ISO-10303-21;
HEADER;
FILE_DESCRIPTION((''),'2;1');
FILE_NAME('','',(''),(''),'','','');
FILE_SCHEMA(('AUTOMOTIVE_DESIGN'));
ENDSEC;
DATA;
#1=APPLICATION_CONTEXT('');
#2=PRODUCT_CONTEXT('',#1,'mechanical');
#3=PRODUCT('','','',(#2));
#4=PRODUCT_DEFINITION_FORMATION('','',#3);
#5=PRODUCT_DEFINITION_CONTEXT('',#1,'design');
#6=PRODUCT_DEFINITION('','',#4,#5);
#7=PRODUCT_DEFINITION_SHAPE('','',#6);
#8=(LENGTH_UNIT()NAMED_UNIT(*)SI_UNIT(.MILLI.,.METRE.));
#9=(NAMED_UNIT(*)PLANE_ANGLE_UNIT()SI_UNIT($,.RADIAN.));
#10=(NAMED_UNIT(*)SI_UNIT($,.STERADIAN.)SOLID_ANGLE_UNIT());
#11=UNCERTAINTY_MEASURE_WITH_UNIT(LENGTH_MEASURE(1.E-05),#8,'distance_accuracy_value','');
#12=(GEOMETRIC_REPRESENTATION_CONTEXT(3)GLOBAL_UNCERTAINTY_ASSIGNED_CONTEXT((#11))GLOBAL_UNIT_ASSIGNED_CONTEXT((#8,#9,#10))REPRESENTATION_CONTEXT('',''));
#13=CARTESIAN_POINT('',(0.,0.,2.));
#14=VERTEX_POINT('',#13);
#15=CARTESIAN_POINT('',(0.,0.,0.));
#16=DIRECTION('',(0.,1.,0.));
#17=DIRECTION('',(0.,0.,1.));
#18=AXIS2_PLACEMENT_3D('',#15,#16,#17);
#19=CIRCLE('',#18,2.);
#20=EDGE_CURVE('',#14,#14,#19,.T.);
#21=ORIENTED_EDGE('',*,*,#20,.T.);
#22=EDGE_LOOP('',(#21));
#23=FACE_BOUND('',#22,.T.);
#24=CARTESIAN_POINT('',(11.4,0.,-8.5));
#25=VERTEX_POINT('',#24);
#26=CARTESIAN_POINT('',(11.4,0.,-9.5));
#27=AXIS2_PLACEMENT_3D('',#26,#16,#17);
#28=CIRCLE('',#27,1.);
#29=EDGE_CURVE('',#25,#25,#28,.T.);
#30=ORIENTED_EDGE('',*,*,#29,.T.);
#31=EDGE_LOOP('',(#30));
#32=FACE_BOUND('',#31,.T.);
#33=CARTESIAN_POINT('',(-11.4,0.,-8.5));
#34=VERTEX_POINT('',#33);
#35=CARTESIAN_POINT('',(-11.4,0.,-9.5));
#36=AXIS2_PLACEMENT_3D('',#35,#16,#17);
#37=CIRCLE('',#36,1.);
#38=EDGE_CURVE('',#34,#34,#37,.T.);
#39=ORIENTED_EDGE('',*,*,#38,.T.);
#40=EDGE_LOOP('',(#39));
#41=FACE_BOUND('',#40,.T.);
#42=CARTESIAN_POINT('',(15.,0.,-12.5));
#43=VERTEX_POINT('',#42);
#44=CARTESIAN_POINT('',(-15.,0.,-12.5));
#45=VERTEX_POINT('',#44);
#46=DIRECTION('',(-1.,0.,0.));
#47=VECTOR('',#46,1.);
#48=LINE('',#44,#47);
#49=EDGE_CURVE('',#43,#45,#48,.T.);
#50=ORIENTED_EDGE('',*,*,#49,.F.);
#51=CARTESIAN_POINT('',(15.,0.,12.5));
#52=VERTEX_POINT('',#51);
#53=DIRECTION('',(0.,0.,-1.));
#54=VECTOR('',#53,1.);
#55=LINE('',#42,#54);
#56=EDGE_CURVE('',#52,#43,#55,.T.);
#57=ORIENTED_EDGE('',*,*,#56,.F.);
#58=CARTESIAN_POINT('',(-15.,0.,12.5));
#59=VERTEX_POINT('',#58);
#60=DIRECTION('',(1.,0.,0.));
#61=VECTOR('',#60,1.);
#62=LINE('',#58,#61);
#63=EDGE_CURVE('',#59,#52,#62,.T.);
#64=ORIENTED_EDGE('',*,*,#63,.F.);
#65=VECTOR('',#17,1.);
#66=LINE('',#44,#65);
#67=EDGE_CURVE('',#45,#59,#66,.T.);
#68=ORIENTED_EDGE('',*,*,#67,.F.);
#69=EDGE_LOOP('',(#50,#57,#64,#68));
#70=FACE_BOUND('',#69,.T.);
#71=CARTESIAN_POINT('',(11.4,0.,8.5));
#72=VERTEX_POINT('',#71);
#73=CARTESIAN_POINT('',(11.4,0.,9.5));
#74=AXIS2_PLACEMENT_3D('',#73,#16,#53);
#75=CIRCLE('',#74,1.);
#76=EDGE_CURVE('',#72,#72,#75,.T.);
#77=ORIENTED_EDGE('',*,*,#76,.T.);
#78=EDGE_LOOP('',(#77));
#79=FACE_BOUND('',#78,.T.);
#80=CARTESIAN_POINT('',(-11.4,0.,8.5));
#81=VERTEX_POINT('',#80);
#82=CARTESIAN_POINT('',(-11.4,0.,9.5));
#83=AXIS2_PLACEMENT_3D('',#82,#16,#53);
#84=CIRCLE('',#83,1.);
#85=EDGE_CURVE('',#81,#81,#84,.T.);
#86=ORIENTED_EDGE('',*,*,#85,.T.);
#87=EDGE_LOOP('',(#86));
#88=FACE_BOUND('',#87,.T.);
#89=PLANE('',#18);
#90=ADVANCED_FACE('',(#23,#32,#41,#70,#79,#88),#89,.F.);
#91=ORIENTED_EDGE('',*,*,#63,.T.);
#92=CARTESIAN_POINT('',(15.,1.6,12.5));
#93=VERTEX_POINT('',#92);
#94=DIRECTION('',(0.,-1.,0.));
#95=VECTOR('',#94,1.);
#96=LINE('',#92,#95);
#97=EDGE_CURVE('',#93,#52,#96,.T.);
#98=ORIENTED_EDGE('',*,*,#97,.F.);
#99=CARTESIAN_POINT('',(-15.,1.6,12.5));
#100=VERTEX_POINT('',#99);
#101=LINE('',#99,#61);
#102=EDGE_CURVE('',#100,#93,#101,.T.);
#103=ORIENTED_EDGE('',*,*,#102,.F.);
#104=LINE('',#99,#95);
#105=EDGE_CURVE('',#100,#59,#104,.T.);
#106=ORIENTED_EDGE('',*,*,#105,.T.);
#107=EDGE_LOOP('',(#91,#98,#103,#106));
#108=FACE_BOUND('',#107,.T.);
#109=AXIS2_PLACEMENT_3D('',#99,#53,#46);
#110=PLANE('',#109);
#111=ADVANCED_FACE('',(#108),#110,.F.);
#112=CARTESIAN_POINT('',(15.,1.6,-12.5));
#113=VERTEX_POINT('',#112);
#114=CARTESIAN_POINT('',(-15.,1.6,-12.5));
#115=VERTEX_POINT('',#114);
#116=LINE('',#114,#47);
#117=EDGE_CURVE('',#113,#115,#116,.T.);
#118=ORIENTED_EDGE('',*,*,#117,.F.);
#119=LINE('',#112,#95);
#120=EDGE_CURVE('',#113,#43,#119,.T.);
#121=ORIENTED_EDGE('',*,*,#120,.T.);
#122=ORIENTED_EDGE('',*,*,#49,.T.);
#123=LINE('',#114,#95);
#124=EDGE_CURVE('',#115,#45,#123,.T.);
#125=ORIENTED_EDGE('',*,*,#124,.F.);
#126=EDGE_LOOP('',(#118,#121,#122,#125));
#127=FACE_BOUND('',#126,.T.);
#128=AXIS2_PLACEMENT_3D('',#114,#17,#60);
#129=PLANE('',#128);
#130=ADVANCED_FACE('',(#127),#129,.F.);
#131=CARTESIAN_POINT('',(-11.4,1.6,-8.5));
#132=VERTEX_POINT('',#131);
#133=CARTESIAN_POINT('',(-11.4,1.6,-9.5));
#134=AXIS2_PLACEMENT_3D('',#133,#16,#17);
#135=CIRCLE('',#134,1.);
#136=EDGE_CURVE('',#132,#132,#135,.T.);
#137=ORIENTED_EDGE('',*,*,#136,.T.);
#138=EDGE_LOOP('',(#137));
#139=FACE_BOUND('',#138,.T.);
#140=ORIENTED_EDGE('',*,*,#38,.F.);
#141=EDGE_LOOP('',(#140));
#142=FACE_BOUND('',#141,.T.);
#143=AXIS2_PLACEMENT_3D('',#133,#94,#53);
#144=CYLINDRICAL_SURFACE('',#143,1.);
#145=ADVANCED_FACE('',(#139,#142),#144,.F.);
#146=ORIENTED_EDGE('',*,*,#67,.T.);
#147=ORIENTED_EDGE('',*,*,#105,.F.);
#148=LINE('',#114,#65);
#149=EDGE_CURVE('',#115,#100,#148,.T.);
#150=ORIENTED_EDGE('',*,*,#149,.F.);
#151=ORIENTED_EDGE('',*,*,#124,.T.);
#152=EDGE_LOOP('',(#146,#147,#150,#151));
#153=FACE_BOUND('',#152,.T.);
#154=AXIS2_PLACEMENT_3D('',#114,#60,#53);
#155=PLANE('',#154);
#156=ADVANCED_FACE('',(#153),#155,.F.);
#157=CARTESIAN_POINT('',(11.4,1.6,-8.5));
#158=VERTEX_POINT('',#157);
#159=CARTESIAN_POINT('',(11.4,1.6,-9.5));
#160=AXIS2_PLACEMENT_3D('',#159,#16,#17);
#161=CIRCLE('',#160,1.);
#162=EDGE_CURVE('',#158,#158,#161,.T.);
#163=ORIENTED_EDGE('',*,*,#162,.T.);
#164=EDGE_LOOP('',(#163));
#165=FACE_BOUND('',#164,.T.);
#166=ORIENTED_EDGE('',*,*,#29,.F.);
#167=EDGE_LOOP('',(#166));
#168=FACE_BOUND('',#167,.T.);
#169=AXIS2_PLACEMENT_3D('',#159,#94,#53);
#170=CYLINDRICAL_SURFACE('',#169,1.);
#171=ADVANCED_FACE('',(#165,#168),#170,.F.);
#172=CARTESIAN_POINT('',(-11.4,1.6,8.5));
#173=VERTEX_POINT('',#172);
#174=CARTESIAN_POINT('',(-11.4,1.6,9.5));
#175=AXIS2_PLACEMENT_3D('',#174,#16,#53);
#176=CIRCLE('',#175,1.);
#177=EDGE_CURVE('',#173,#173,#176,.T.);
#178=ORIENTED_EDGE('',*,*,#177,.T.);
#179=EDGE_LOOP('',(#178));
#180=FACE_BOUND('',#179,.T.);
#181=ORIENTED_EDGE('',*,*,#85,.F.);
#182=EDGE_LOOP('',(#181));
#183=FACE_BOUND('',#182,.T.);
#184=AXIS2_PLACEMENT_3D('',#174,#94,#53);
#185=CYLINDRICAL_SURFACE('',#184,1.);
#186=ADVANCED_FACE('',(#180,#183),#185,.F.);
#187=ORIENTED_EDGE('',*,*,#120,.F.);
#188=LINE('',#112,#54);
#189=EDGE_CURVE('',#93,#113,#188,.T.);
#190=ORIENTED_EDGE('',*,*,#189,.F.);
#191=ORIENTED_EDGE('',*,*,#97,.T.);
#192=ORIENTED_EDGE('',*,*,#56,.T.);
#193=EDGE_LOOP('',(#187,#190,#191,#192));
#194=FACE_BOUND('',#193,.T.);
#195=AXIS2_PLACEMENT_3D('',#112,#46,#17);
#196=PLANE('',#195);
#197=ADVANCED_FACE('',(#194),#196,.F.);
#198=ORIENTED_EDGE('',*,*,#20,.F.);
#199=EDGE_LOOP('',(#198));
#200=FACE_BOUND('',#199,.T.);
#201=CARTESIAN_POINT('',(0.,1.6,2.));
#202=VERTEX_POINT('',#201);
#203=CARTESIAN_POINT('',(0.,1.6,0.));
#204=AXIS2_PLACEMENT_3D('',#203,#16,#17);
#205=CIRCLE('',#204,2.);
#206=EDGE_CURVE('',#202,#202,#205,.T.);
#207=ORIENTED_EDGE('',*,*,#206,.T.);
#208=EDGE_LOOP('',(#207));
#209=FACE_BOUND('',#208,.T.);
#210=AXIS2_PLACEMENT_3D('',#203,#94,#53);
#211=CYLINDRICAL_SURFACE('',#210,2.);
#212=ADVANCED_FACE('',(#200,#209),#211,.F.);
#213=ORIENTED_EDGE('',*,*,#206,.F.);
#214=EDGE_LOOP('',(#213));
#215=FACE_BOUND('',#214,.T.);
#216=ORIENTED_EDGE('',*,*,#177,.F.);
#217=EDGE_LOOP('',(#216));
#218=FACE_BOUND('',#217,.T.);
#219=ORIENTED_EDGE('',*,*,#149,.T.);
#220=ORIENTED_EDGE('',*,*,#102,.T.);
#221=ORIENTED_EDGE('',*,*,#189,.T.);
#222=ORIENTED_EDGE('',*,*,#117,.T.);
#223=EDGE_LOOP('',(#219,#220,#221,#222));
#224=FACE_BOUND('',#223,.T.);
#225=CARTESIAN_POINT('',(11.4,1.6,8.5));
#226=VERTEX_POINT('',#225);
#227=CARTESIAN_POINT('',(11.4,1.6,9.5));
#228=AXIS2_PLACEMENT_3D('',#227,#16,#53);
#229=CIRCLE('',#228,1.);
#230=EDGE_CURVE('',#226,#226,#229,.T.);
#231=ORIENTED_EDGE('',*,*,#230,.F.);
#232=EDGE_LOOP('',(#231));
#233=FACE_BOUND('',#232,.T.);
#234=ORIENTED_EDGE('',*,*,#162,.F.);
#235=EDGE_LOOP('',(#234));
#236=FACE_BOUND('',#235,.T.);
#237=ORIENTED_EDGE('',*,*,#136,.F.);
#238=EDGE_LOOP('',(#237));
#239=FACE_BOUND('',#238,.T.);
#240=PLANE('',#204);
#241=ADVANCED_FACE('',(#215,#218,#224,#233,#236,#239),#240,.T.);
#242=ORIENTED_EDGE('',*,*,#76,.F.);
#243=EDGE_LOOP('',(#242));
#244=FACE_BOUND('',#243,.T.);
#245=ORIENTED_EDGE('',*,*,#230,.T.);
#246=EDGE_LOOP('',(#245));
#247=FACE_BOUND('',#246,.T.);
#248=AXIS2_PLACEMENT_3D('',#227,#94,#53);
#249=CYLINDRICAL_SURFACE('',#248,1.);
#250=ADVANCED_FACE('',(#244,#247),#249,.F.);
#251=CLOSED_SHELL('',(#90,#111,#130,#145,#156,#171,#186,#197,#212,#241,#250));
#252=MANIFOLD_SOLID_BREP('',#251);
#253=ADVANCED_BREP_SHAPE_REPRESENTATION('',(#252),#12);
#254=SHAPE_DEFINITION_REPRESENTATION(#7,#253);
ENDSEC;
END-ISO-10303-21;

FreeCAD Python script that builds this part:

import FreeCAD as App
import Part
import Sketcher
Q = App.Units.Quantity


def add_polygon(sketch, points):
    """Adds a closed chain of lines whose ends are joined by coincident constraints."""
    first, n = sketch.GeometryCount, len(points)
    for a, b in zip(points, points[1:] + points[:1]):
        sketch.addGeometry(Part.LineSegment(App.Vector(*a, 0), App.Vector(*b, 0)), False)
    for i in range(n):
        sketch.addConstraint(Sketcher.Constraint("Coincident", first + i, 2, first + (i + 1) % n, 1))

doc = App.newDocument("Part")
body = doc.addObject("PartDesign::Body", "Body")

sketch1 = body.newObject("Sketcher::SketchObject", "Sketch")
sketch1.AttachmentSupport = (doc.getObject("XZ_Plane"), [""])
sketch1.MapMode = "FlatFace"
add_polygon(sketch1, [(-15, -12.5), (-15, 12.5), (15, 12.5), (15, -12.5)])
sketch1.addGeometry(Part.Circle(App.Vector(-11.4, 9.5, 0), App.Vector(0, 0, 1), 1), False)
sketch1.addGeometry(Part.Circle(App.Vector(11.4, 9.5, 0), App.Vector(0, 0, 1), 1), False)
sketch1.addGeometry(Part.Circle(App.Vector(-11.4, -9.5, 0), App.Vector(0, 0, 1), 1), False)
sketch1.addGeometry(Part.Circle(App.Vector(0, 0, 0), App.Vector(0, 0, 1), 2), False)
sketch1.addGeometry(Part.Circle(App.Vector(11.4, -9.5, 0), App.Vector(0, 0, 1), 1), False)
sketch1.addConstraint([
    Sketcher.Constraint("Vertical", 0),
    Sketcher.Constraint("Horizontal", 1),
    Sketcher.Constraint("Vertical", 2),
    Sketcher.Constraint("Horizontal", 3),
    Sketcher.Constraint("Coincident", 7, 3, -1, 1),
    Sketcher.Constraint("Equal", 4, 5),
    Sketcher.Constraint("Equal", 5, 6),
    Sketcher.Constraint("Equal", 6, 8),
    Sketcher.Constraint("Symmetric", 5, 3, 6, 3, -1, 1),
    Sketcher.Constraint("Symmetric", 4, 3, 8, 3, -1, 1),
    Sketcher.Constraint("Symmetric", 0, 2, 2, 2, -1, 1),
    Sketcher.Constraint("Symmetric", 4, 3, 5, 3, -2),
    Sketcher.Constraint("Diameter", 4, Q("2 mm")),
    Sketcher.Constraint("Diameter", 7, Q("4 mm")),
    Sketcher.Constraint("DistanceX", 1, 1, 1, 2, Q("30 mm")),
    Sketcher.Constraint("DistanceY", 0, 1, 0, 2, Q("25 mm")),
    Sketcher.Constraint("DistanceY", 6, 3, 4, 3, Q("19 mm")),
    Sketcher.Constraint("DistanceX", 4, 3, -1, 1, Q("11.4 mm")),
])
pad1 = body.newObject("PartDesign::Pad", "Pad")
pad1.Profile = sketch1
pad1.Length = 1.6
pad1.Reversed = True

doc.recompute()
